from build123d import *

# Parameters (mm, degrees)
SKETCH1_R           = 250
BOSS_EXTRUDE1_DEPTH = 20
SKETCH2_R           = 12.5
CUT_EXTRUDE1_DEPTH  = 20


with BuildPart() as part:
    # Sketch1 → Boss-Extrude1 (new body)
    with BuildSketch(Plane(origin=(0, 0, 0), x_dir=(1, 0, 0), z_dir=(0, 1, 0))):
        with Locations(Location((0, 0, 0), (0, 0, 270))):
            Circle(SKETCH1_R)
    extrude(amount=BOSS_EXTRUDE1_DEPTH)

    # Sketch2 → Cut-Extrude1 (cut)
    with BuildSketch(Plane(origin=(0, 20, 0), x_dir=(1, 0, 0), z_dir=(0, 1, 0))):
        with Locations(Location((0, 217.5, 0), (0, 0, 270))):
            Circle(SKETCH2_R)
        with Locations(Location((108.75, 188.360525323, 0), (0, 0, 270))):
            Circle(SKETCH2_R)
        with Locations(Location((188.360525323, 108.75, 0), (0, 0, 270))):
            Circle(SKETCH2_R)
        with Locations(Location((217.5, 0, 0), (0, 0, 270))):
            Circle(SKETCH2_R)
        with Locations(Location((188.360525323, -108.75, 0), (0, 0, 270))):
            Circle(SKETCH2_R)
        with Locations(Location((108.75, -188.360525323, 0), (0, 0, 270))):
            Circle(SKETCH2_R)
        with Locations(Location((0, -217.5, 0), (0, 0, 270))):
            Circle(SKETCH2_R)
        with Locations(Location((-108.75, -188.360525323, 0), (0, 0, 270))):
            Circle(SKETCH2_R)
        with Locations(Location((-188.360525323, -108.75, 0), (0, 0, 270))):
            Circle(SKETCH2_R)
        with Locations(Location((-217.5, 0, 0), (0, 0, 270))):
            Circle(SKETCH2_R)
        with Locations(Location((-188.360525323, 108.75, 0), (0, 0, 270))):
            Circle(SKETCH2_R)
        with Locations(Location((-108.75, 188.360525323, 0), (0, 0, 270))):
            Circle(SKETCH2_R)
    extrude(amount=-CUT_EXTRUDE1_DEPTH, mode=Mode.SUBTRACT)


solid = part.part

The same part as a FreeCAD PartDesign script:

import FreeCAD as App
import Part
import Sketcher
from FreeCAD import Vector

doc = App.newDocument("Part")
body = doc.addObject("PartDesign::Body", "Body")

# Sketch on XZ plane
sketch1 = doc.addObject("Sketcher::SketchObject", "Sketch")
body.addObject(sketch1)
sketch1.AttachmentSupport = (doc.XZ_Plane, [""])
sketch1.MapMode = "FlatFace"
sketch1.addGeometry(Part.Circle(Vector(0, 0, 0), Vector(0, 0, 1), 250), False)
sketch1.addConstraint(Sketcher.Constraint("Coincident", 0, 3, -1, 1))
sketch1.addConstraint(Sketcher.Constraint("Diameter", 0, 500.0))
pad1 = doc.addObject("PartDesign::Pad", "Pad")
body.addObject(pad1)
pad1.Profile = sketch1
pad1.Length = 20
pad1.Reversed = True

# Sketch on XZ plane
sketch2 = doc.addObject("Sketcher::SketchObject", "Sketch001")
body.addObject(sketch2)
sketch2.AttachmentSupport = (doc.XZ_Plane, [""])
sketch2.MapMode = "FlatFace"
sketch2.AttachmentOffset = App.Placement(Vector(0, 0, -20), App.Rotation())
sketch2.addGeometry(Part.Circle(Vector(0, -217.5, 0), Vector(0, 0, 1), 12.5), False)
sketch2.addGeometry(Part.Circle(Vector(108.75, -188.360525, 0), Vector(0, 0, 1), 12.5), False)
sketch2.addGeometry(Part.Circle(Vector(188.360525, -108.75, 0), Vector(0, 0, 1), 12.5), False)
sketch2.addGeometry(Part.Circle(Vector(217.5, 0, 0), Vector(0, 0, 1), 12.5), False)
sketch2.addGeometry(Part.Circle(Vector(188.360525, 108.75, 0), Vector(0, 0, 1), 12.5), False)
sketch2.addGeometry(Part.Circle(Vector(108.75, 188.360525, 0), Vector(0, 0, 1), 12.5), False)
sketch2.addGeometry(Part.Circle(Vector(0, 217.5, 0), Vector(0, 0, 1), 12.5), False)
sketch2.addGeometry(Part.Circle(Vector(-108.75, 188.360525, 0), Vector(0, 0, 1), 12.5), False)
sketch2.addGeometry(Part.Circle(Vector(-188.360525, 108.75, 0), Vector(0, 0, 1), 12.5), False)
sketch2.addGeometry(Part.Circle(Vector(-217.5, 0, 0), Vector(0, 0, 1), 12.5), False)
sketch2.addGeometry(Part.Circle(Vector(-188.360525, -108.75, 0), Vector(0, 0, 1), 12.5), False)
sketch2.addGeometry(Part.Circle(Vector(-108.75, -188.360525, 0), Vector(0, 0, 1), 12.5), False)
sketch2.addConstraint(Sketcher.Constraint("Equal", 0, 1))
sketch2.addConstraint(Sketcher.Constraint("Equal", 1, 2))
sketch2.addConstraint(Sketcher.Constraint("Equal", 2, 3))
sketch2.addConstraint(Sketcher.Constraint("Equal", 3, 4))
sketch2.addConstraint(Sketcher.Constraint("Equal", 4, 5))
sketch2.addConstraint(Sketcher.Constraint("Equal", 5, 6))
sketch2.addConstraint(Sketcher.Constraint("Equal", 6, 7))
sketch2.addConstraint(Sketcher.Constraint("Equal", 7, 8))
sketch2.addConstraint(Sketcher.Constraint("Equal", 8, 9))
sketch2.addConstraint(Sketcher.Constraint("Equal", 9, 10))
sketch2.addConstraint(Sketcher.Constraint("Equal", 10, 11))
sketch2.addConstraint(Sketcher.Constraint("Symmetric", 0, 3, 6, 3, -1, 1))
sketch2.addConstraint(Sketcher.Constraint("Symmetric", 1, 3, 7, 3, -1, 1))
sketch2.addConstraint(Sketcher.Constraint("Symmetric", 2, 3, 8, 3, -1, 1))
sketch2.addConstraint(Sketcher.Constraint("Symmetric", 3, 3, 9, 3, -1, 1))
sketch2.addConstraint(Sketcher.Constraint("Symmetric", 4, 3, 10, 3, -1, 1))
sketch2.addConstraint(Sketcher.Constraint("Symmetric", 5, 3, 11, 3, -1, 1))
sketch2.addConstraint(Sketcher.Constraint("Symmetric", 5, 3, 7, 3, -2))
sketch2.addConstraint(Sketcher.Constraint("Symmetric", 4, 3, 8, 3, -2))
sketch2.addConstraint(Sketcher.Constraint("PointOnObject", 0, 3, -2))
sketch2.addConstraint(Sketcher.Constraint("PointOnObject", 3, 3, -1))
sketch2.addConstraint(Sketcher.Constraint("Diameter", 0, 25.0))
sketch2.addConstraint(Sketcher.Constraint("DistanceY", 0, 3, -1, 1, 217.5))
sketch2.addConstraint(Sketcher.Constraint("DistanceX", -1, 1, 3, 3, 217.5))
sketch2.addConstraint(Sketcher.Constraint("DistanceY", 2, 3, 4, 3, 217.5))
sketch2.addConstraint(Sketcher.Constraint("DistanceX", 7, 3, 5, 3, 217.5))
sketch2.addConstraint(Sketcher.Constraint("DistanceY", 1, 3, 5, 3, 376.721051))
sketch2.addConstraint(Sketcher.Constraint("DistanceX", 8, 3, 4, 3, 376.721051))
pocket1 = doc.addObject("PartDesign::Pocket", "Pocket")
body.addObject(pocket1)
pocket1.Profile = sketch2
pocket1.Length = 20
pocket1.Reversed = True

doc.recompute()
